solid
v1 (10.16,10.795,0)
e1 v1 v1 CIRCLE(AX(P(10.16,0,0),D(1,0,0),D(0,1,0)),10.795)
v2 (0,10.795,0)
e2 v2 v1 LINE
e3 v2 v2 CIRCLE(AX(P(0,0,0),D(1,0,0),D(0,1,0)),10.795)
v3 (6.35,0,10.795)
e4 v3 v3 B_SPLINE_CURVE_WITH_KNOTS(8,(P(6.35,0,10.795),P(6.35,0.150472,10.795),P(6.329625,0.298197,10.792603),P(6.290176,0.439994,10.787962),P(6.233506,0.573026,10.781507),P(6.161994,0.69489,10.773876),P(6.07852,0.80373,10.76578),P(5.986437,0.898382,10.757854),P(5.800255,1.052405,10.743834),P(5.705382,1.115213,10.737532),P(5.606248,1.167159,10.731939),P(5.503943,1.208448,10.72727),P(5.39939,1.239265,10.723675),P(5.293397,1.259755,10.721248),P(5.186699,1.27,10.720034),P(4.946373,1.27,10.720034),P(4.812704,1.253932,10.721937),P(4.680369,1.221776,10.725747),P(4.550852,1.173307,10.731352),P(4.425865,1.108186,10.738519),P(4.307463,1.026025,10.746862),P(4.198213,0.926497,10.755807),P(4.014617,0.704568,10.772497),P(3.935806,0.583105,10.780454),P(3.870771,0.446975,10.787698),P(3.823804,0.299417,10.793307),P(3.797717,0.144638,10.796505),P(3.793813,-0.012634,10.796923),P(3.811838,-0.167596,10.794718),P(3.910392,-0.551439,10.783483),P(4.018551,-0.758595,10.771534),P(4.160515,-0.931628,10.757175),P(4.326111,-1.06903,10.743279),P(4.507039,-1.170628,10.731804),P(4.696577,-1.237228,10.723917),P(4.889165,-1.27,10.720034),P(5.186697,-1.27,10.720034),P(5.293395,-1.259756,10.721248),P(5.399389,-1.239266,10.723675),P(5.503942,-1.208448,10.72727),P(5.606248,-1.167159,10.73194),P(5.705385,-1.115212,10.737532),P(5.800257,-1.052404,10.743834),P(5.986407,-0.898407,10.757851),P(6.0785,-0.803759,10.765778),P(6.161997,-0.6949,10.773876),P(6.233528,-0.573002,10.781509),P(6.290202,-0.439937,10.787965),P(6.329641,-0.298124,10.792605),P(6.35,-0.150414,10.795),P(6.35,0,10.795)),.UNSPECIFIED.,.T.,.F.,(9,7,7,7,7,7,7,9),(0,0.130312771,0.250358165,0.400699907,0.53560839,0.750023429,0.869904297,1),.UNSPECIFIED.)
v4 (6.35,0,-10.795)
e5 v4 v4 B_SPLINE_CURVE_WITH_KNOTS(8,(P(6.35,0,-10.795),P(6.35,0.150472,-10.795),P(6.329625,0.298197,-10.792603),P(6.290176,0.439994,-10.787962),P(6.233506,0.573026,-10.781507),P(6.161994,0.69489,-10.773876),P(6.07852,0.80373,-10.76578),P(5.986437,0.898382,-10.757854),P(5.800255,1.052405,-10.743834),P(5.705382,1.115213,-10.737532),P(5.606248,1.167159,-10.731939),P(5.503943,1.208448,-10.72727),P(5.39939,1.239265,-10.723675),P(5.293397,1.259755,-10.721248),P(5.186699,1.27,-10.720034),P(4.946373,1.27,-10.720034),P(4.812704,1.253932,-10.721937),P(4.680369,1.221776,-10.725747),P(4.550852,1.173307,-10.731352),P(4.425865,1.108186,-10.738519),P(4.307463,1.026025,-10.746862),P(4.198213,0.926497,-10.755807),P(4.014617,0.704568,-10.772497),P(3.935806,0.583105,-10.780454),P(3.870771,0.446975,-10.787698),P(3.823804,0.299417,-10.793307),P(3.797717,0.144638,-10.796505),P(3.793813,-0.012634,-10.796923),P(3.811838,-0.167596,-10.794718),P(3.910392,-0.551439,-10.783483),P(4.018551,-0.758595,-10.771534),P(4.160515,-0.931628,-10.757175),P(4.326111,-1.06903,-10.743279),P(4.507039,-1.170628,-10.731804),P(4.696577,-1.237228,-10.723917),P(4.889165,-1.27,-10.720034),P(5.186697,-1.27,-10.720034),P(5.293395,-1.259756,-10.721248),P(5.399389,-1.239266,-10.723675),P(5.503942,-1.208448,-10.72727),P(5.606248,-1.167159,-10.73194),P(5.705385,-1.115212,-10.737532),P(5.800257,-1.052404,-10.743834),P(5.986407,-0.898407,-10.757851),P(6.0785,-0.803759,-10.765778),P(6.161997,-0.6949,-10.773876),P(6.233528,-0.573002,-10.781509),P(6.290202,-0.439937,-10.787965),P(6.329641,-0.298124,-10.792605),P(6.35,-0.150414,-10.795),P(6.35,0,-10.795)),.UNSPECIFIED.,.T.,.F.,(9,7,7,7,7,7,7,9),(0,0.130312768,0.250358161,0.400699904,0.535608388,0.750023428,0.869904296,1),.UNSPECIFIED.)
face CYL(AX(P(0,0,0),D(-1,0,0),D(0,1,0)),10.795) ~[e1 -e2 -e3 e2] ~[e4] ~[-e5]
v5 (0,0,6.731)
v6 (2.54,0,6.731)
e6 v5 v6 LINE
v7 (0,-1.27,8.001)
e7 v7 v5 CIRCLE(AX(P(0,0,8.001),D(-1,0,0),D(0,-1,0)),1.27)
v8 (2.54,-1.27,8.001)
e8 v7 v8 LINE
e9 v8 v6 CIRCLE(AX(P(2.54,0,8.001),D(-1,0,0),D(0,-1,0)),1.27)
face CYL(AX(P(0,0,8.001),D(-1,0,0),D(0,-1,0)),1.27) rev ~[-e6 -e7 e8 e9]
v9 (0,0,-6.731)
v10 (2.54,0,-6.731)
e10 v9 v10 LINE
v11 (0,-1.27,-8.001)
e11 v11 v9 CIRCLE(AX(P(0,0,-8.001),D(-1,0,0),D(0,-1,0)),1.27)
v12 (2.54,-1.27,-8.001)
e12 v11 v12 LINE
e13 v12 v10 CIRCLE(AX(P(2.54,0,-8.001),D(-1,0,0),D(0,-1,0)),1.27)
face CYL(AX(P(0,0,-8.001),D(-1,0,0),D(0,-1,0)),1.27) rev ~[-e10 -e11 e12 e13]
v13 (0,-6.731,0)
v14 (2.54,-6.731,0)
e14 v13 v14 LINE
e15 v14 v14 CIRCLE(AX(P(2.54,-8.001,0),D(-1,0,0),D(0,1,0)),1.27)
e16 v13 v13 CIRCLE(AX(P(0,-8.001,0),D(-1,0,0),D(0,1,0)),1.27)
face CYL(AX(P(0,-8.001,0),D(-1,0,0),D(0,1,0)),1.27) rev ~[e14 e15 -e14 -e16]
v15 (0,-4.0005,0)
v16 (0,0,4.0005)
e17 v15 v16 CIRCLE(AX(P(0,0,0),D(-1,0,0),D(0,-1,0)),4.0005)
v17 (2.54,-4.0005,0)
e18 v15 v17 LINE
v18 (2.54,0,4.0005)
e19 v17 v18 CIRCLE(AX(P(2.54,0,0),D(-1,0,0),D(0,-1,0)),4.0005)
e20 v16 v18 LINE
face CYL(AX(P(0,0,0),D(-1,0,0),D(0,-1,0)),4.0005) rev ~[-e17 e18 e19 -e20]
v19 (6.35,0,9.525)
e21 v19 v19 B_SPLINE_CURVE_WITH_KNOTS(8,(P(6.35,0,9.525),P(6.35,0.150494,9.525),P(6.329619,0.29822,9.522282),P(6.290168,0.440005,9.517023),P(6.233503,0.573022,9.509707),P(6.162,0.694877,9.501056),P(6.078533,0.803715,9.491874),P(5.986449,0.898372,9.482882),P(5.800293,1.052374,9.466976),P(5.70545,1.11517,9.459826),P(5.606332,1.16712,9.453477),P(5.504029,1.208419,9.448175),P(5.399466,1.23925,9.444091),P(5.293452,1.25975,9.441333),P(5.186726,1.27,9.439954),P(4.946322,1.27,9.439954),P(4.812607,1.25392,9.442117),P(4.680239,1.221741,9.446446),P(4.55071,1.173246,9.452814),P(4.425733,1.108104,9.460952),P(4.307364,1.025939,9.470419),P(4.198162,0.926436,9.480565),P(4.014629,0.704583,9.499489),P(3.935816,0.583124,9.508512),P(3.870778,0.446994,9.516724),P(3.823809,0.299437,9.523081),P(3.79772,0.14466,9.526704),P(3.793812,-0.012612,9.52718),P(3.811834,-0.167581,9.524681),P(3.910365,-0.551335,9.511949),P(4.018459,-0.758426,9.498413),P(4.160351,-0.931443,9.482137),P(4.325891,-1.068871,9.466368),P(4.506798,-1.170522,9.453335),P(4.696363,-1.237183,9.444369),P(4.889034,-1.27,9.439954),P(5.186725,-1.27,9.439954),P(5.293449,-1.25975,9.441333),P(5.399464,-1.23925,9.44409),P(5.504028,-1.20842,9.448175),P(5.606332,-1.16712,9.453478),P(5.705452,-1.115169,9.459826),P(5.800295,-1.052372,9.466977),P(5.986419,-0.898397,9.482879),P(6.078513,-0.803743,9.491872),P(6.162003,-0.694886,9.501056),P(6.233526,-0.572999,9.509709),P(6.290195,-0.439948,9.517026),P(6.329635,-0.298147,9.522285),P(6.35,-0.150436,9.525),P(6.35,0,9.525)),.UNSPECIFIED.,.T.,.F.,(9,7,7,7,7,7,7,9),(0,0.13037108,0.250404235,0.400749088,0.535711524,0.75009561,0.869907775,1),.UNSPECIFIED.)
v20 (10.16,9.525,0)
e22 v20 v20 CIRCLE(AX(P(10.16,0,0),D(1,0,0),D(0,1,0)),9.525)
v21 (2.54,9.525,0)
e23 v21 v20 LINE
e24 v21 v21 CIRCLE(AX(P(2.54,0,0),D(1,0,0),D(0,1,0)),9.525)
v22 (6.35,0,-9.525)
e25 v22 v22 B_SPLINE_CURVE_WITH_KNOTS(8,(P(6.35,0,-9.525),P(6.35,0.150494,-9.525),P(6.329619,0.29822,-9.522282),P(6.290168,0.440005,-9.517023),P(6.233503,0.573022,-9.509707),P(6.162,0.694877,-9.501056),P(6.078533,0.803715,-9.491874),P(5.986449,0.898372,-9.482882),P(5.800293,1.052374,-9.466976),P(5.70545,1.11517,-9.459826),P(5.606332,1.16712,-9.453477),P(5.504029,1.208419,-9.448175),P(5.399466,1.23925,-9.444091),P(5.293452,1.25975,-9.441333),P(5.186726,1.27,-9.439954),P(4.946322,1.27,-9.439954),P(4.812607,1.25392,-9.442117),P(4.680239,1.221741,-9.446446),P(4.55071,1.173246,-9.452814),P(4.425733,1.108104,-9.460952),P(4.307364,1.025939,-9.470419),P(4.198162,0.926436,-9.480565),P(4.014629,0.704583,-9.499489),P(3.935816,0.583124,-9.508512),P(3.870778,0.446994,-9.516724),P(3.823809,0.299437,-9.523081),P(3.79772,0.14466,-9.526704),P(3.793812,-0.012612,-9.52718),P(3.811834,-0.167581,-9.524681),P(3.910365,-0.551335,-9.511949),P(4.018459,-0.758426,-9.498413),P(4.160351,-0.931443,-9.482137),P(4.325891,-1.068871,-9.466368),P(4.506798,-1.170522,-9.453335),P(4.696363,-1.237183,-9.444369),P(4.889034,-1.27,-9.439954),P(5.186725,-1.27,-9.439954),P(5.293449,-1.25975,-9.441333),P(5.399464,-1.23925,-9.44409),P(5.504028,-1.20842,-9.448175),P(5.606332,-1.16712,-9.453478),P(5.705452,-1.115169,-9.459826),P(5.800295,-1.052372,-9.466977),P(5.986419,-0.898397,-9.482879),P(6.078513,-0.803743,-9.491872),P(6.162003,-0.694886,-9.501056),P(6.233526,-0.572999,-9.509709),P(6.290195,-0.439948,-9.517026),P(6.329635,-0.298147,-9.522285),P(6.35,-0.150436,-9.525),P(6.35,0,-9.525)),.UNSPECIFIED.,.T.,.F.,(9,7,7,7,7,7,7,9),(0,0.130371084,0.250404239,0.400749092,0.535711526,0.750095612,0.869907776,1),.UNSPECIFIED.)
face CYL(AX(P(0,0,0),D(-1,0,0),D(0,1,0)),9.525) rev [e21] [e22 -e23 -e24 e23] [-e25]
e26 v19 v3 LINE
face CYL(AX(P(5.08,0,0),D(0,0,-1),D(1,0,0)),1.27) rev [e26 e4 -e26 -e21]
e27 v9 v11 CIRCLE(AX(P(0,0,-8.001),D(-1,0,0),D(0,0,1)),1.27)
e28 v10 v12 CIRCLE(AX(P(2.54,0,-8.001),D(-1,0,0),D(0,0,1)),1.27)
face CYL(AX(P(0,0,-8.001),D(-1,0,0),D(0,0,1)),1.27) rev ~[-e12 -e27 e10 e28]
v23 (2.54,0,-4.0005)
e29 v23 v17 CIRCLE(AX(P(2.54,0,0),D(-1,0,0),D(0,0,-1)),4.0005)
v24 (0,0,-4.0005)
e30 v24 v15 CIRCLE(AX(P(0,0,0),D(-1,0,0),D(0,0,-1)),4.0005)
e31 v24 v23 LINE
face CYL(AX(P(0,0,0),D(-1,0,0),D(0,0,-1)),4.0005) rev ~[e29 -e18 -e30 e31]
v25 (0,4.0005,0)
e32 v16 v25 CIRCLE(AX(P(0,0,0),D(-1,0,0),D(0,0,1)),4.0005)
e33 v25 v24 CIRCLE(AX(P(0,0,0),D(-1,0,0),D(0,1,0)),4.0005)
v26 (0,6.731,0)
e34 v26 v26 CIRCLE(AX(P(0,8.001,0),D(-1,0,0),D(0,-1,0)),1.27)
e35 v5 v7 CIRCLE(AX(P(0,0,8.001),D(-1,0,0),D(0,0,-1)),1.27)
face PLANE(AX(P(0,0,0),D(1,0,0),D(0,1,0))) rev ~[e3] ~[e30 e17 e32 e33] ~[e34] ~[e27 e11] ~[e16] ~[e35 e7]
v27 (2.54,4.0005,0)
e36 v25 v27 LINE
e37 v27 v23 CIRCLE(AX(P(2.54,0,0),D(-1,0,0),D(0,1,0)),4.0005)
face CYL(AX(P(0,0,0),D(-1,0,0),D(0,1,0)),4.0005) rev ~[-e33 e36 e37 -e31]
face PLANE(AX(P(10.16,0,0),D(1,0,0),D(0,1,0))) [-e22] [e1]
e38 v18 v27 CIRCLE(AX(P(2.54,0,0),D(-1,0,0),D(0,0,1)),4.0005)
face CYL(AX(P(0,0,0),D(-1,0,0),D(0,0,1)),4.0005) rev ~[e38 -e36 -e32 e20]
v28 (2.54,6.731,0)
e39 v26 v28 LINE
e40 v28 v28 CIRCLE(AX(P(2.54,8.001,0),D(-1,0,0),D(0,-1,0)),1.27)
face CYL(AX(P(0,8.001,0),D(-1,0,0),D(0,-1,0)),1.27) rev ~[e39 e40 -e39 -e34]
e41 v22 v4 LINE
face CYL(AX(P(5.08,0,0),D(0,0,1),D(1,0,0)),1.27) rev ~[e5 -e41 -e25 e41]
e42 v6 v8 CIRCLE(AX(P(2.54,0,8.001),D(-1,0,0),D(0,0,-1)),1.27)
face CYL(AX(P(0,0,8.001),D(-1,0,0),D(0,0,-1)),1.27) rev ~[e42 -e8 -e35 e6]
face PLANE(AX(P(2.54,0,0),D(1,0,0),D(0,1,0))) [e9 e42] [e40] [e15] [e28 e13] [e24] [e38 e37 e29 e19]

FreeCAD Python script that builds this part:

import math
import FreeCAD as App
import Part
import Sketcher
from FreeCAD import Vector
Q = App.Units.Quantity

doc = App.newDocument("Part")
params = doc.addObject("Spreadsheet::Sheet", "Params")
for row, (alias, value) in enumerate([
    ("sketch1_diameter", "0.85 in"),
    ("sketch1_diameter2", "0.75 in"),
    ("pad1_length", "0.4 in"),
    ("sketch2_diameter", "0.75 in"),
    ("pad2_length", "0.1 in"),
    ("sketch3_diameter", "0.1 in"),
    ("pocket1_length", "1 in"),
    ("sketch4_diameter", "0.1 in"),
    ("pocket2_length", "1 in"),
    ("sketch5_diameter", "0.1 in"),
    ("pocket3_length", "1 in"),
], start=1):
    params.set(f"A{row}", alias)
    params.set(f"B{row}", "=" + value)
    params.setAlias(f"B{row}", alias)

body = doc.addObject("PartDesign::Body", "Body")

# Sketch on YZ plane
sketch1 = body.newObject("Sketcher::SketchObject", "Sketch")
sketch1.AttachmentSupport = (doc.getObject("YZ_Plane"), [""])
sketch1.MapMode = "FlatFace"
sketch1.addGeometry([
    Part.Circle(Vector(0, 0, 0), Vector(0, 0, 1), 11),
    Part.Circle(Vector(0, 0, 0), Vector(0, 0, 1), 10),
], False)
sketch1.addConstraint([
    Sketcher.Constraint("Coincident", 0, 3, -1, 1),
    Sketcher.Constraint("Coincident", 1, 3, -1, 1),
    Sketcher.Constraint("Diameter", 0, Q("0.85 in")),
    Sketcher.Constraint("Diameter", 1, Q("0.75 in")),
])
sketch1.setExpression("Constraints[2]", "Params.sketch1_diameter")
sketch1.setExpression("Constraints[3]", "Params.sketch1_diameter2")
pad1 = body.newObject("PartDesign::Pad", "Pad")
pad1.Profile = sketch1
pad1.setExpression("Length", "Params.pad1_length")

# Sketch on YZ plane
sketch2 = body.newObject("Sketcher::SketchObject", "Sketch001")
sketch2.AttachmentSupport = (doc.getObject("YZ_Plane"), [""])
sketch2.MapMode = "FlatFace"
sketch2.addGeometry(Part.Circle(Vector(0, 0, 0), Vector(0, 0, 1), 10), False)
sketch2.addConstraint([
    Sketcher.Constraint("Coincident", 0, 3, -1, 1),
    Sketcher.Constraint("Diameter", 0, Q("0.75 in")),
])
sketch2.setExpression("Constraints[1]", "Params.sketch2_diameter")
pad2 = body.newObject("PartDesign::Pad", "Pad001")
pad2.Profile = sketch2
pad2.setExpression("Length", "Params.pad2_length")

# Sketch on XY plane
sketch3 = body.newObject("Sketcher::SketchObject", "Sketch002")
sketch3.AttachmentSupport = (doc.getObject("XY_Plane"), [""])
sketch3.MapMode = "FlatFace"
sketch3.addGeometry(Part.Circle(Vector(5.1, 0, 0), Vector(0, 0, 1), 1.3), False)
sketch3.addConstraint([
    Sketcher.Constraint("PointOnObject", 0, 3, -1),
    Sketcher.Constraint("Diameter", 0, Q("0.1 in")),
    Sketcher.Constraint("DistanceX", -1, 1, 0, 3, Q("0.2 in")),
])
sketch3.setExpression("Constraints[1]", "Params.sketch3_diameter")
pocket1 = body.newObject("PartDesign::Pocket", "Pocket")
pocket1.Profile = sketch3
pocket1.setExpression("Length", "Params.pocket1_length")

# Sketch on XY plane
sketch4 = body.newObject("Sketcher::SketchObject", "Sketch003")
sketch4.AttachmentSupport = (doc.getObject("XY_Plane"), [""])
sketch4.MapMode = "FlatFace"
sketch4.addGeometry(Part.Circle(Vector(5.1, 0, 0), Vector(0, 0, 1), 1.3), False)
sketch4.addConstraint([
    Sketcher.Constraint("PointOnObject", 0, 3, -1),
    Sketcher.Constraint("Diameter", 0, Q("0.1 in")),
    Sketcher.Constraint("DistanceX", -1, 1, 0, 3, Q("0.2 in")),
])
sketch4.setExpression("Constraints[1]", "Params.sketch4_diameter")
pocket2 = body.newObject("PartDesign::Pocket", "Pocket001")
pocket2.Profile = sketch4
pocket2.setExpression("Length", "Params.pocket2_length")
pocket2.Reversed = True

# Sketch on YZ plane
sketch5 = body.newObject("Sketcher::SketchObject", "Sketch004")
sketch5.AttachmentSupport = (doc.getObject("YZ_Plane"), [""])
sketch5.MapMode = "FlatFace"
sketch5.addGeometry([
    Part.ArcOfCircle(Part.Circle(Vector(0, 8, 0), Vector(0, 0, 1), 1.3), math.radians(-90), math.radians(180)),  # 0
    Part.ArcOfCircle(Part.Circle(Vector(0, 8, 0), Vector(0, 0, 1), 1.3), math.radians(180), math.radians(270)),  # 1
    Part.Circle(Vector(8, 0, 0), Vector(0, 0, 1), 1.3),  # 2
    Part.ArcOfCircle(Part.Circle(Vector(0, -8, 0), Vector(0, 0, 1), 1.3), math.radians(90), math.radians(180)),  # 3
    Part.ArcOfCircle(Part.Circle(Vector(0, -8, 0), Vector(0, 0, 1), 1.3), math.radians(180), math.radians(450)),  # 4
    Part.Circle(Vector(-8, 0, 0), Vector(0, 0, 1), 1.3),  # 5
    Part.ArcOfCircle(Part.Circle(Vector(0, 0, 0), Vector(0, 0, 1), 4), math.radians(90), math.radians(180)),  # 6
    Part.ArcOfCircle(Part.Circle(Vector(0, 0, 0), Vector(0, 0, 1), 4), math.radians(0), math.radians(90)),  # 7
    Part.ArcOfCircle(Part.Circle(Vector(0, 0, 0), Vector(0, 0, 1), 4), math.radians(-90), math.radians(0)),  # 8
    Part.ArcOfCircle(Part.Circle(Vector(0, 0, 0), Vector(0, 0, 1), 4), math.radians(180), math.radians(270)),  # 9
], False)
sketch5.addConstraint([
    Sketcher.Constraint("Tangent", 0, 1, 1, 2),
    Sketcher.Constraint("Coincident", 1, 1, 0, 2),
    Sketcher.Constraint("Tangent", 3, 1, 4, 2),
    Sketcher.Constraint("Coincident", 4, 1, 3, 2),
    Sketcher.Constraint("Tangent", 6, 1, 7, 2),
    Sketcher.Constraint("Tangent", 7, 1, 8, 2),
    Sketcher.Constraint("Tangent", 8, 1, 9, 2),
    Sketcher.Constraint("Tangent", 9, 1, 6, 2),
    Sketcher.Constraint("Coincident", 6, 3, -1, 1),
    Sketcher.Constraint("Equal", 1, 2),
    Sketcher.Constraint("Equal", 2, 3),
    Sketcher.Constraint("Equal", 4, 5),
    Sketcher.Constraint("Equal", 6, 7),
    Sketcher.Constraint("Symmetric", 0, 3, 3, 3, -1, 1),
    Sketcher.Constraint("Symmetric", 2, 3, 5, 3, -1, 1),
    Sketcher.Constraint("Symmetric", 1, 1, 4, 1, -1),
    Sketcher.Constraint("PointOnObject", 2, 3, -1),
    Sketcher.Constraint("PointOnObject", 0, 1, -2),
    Sketcher.Constraint("PointOnObject", 3, 1, -2),
    Sketcher.Constraint("PointOnObject", 6, 1, -2),
    Sketcher.Constraint("PointOnObject", 7, 1, -1),
    Sketcher.Constraint("PointOnObject", 8, 1, -2),
    Sketcher.Constraint("PointOnObject", 9, 1, -1),
    Sketcher.Constraint("Horizontal", 0, 3, 1, 1),
    Sketcher.Constraint("Diameter", 2, Q("0.1 in")),
    Sketcher.Constraint("Radius", 6, Q("0.1575 in")),
    Sketcher.Constraint("DistanceY", 3, 3, 0, 3, Q("0.63 in")),
    Sketcher.Constraint("DistanceX", 5, 3, 2, 3, Q("0.63 in")),
])
sketch5.setExpression("Constraints[24]", "Params.sketch5_diameter")
pocket3 = body.newObject("PartDesign::Pocket", "Pocket002")
pocket3.Profile = sketch5
pocket3.setExpression("Length", "Params.pocket3_length")
pocket3.Reversed = True

doc.recompute()
